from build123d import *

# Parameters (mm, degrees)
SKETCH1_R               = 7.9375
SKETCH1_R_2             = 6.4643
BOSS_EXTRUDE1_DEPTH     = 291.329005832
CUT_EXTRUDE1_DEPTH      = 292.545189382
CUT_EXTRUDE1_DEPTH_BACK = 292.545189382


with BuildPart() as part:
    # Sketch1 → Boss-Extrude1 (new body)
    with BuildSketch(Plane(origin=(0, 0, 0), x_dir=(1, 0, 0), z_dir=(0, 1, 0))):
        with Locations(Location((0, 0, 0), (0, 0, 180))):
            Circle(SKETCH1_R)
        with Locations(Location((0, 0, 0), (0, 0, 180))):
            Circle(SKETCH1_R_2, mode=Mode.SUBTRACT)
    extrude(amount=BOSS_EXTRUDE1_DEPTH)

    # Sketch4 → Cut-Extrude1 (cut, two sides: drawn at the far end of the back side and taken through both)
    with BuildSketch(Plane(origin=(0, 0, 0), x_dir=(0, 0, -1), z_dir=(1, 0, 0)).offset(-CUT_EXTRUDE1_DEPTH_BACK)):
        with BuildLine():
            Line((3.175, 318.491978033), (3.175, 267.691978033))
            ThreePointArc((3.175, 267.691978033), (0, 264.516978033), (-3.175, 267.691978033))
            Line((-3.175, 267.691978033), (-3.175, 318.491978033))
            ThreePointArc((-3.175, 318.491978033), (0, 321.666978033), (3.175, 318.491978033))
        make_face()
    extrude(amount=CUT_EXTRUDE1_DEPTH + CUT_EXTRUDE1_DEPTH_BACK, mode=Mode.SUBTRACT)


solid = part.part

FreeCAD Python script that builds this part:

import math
import FreeCAD as App
import Part
import Sketcher

V = App.Vector
Q = App.Units.Quantity

doc = App.newDocument("Part")
params = doc.addObject("Spreadsheet::Sheet", "Params")
for row, (alias, value) in enumerate([
    ("sketch1_diameter", "0.625 in"),
    ("sketch1_diameter2", "0.509 in"),
    ("pad1_length", "291.329006 mm"),
    ("sketch2_width", "2 in"),
    ("sketch2_radius", "0.125 in"),
], start=1):
    params.set(f"A{row}", alias)
    params.set(f"B{row}", "=" + value)
    params.setAlias(f"B{row}", alias)

body = doc.addObject("PartDesign::Body", "Body")

sketch1 = doc.addObject("Sketcher::SketchObject", "Sketch")
body.addObject(sketch1)
sketch1.AttachmentSupport = (doc.XZ_Plane, [""])
sketch1.MapMode = "FlatFace"
sketch1.addGeometry([
    Part.Circle(V(0, 0, 0), V(0, 0, 1), 7.9375),
    Part.Circle(V(0, 0, 0), V(0, 0, 1), 6.4643),
], False)
sketch1.addConstraint([
    Sketcher.Constraint("Coincident", 0, 3, -1, 1),
    Sketcher.Constraint("Coincident", 1, 3, -1, 1),
    Sketcher.Constraint("Diameter", 0, Q("0.625 in")),
    Sketcher.Constraint("Diameter", 1, Q("0.509 in")),
])
sketch1.setExpression("Constraints[2]", "Params.sketch1_diameter")
sketch1.setExpression("Constraints[3]", "Params.sketch1_diameter2")
pad1 = doc.addObject("PartDesign::Pad", "Pad")
body.addObject(pad1)
pad1.Profile = sketch1
pad1.setExpression("Length", "Params.pad1_length")
pad1.Reversed = True

sketch2 = doc.addObject("Sketcher::SketchObject", "Sketch001")
body.addObject(sketch2)
sketch2.AttachmentSupport = (doc.YZ_Plane, [""])
sketch2.MapMode = "FlatFace"
sketch2.addGeometry([
    Part.LineSegment(V(267.691978, -3.175, 0), V(318.491978, -3.175, 0)),
    Part.ArcOfCircle(Part.Circle(V(318.491978, 0, 0), V(0, 0, 1), 3.175), math.radians(-90), math.radians(90)),
    Part.LineSegment(V(318.491978, 3.175, 0), V(267.691978, 3.175, 0)),
    Part.ArcOfCircle(Part.Circle(V(267.691978, 0, 0), V(0, 0, 1), 3.175), math.radians(90), math.radians(270)),
], False)
sketch2.addConstraint([
    Sketcher.Constraint("Tangent", 0, 2, 1, 1),
    Sketcher.Constraint("Tangent", 1, 2, 2, 1),
    Sketcher.Constraint("Tangent", 2, 2, 3, 1),
    Sketcher.Constraint("Tangent", 3, 2, 0, 1),
    Sketcher.Constraint("Horizontal", 0),
    Sketcher.Constraint("Horizontal", 2),
    Sketcher.Constraint("PointOnObject", 1, 3, -1),
    Sketcher.Constraint("DistanceX", 0, 1, 0, 2, Q("2 in")),
    Sketcher.Constraint("Radius", 1, Q("0.125 in")),
    Sketcher.Constraint("DistanceX", -1, 1, 1, 3, 318.491978),
])
sketch2.setExpression("Constraints[7]", "Params.sketch2_width")
sketch2.setExpression("Constraints[8]", "Params.sketch2_radius")
pocket1 = doc.addObject("PartDesign::Pocket", "Pocket")
body.addObject(pocket1)
pocket1.Profile = sketch2
pocket1.Type = "ThroughAll"
pocket1.Midplane = True

doc.recompute()
